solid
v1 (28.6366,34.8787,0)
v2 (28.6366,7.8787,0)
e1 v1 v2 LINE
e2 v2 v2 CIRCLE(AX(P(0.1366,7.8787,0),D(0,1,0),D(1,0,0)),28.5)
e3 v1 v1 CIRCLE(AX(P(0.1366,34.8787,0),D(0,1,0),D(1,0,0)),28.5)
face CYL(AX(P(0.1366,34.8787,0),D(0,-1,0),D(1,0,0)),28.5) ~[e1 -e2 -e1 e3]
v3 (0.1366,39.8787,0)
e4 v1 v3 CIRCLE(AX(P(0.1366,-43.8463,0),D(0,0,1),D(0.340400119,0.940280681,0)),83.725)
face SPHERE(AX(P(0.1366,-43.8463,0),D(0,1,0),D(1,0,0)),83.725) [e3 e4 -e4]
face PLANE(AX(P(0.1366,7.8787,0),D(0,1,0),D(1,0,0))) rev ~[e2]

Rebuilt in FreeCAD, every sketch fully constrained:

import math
import FreeCAD as App
import Part
import Sketcher

doc = App.newDocument("Part")
body = doc.addObject("PartDesign::Body", "Body")

sketch1 = doc.addObject("Sketcher::SketchObject", "Sketch")
body.addObject(sketch1)
sketch1.AttachmentSupport = (doc.XY_Plane, [""])
sketch1.MapMode = "FlatFace"
sketch1.addGeometry([
    Part.LineSegment(App.Vector(29, 8, 0), App.Vector(29, 35, 0)),
    Part.ArcOfCircle(Part.Circle(App.Vector(0, -44, 0), App.Vector(0, 0, 1), 84), math.radians(70.1), math.radians(90)),
    Part.LineSegment(App.Vector(0, 40, 0), App.Vector(0, 8, 0)),
    Part.LineSegment(App.Vector(0, 8, 0), App.Vector(29, 8, 0)),
], False)
sketch1.addGeometry(Part.LineSegment(App.Vector(0, -44, 0), App.Vector(0, 40, 0)), True)
sketch1.addConstraint([
    Sketcher.Constraint("Coincident", 0, 2, 1, 1),
    Sketcher.Constraint("Coincident", 1, 2, 2, 1),
    Sketcher.Constraint("Coincident", 2, 2, 3, 1),
    Sketcher.Constraint("Coincident", 3, 2, 0, 1),
    Sketcher.Constraint("Vertical", 0),
    Sketcher.Constraint("Vertical", 2),
    Sketcher.Constraint("Horizontal", 3),
    Sketcher.Constraint("Vertical", 4),
    Sketcher.Constraint("Coincident", 4, 1, 1, 3),
    Sketcher.Constraint("Coincident", 4, 2, 1, 2),
    Sketcher.Constraint("DistanceY", 2, 2, 2, 1, 32.0),
    Sketcher.Constraint("DistanceX", 3, 1, 3, 2, 28.5),
    Sketcher.Constraint("DistanceY", 0, 2, 1, 2, 5.0),
    Sketcher.Constraint("DistanceX", -1, 1, 1, 3, 0.1366),
    Sketcher.Constraint("DistanceY", 1, 3, -1, 1, 43.8463),
])
revolution = doc.addObject("PartDesign::Revolution", "Revolution")
body.addObject(revolution)
revolution.Profile = sketch1
revolution.ReferenceAxis = (sketch1, ["Axis0"])
revolution.Angle = 360

doc.recompute()
